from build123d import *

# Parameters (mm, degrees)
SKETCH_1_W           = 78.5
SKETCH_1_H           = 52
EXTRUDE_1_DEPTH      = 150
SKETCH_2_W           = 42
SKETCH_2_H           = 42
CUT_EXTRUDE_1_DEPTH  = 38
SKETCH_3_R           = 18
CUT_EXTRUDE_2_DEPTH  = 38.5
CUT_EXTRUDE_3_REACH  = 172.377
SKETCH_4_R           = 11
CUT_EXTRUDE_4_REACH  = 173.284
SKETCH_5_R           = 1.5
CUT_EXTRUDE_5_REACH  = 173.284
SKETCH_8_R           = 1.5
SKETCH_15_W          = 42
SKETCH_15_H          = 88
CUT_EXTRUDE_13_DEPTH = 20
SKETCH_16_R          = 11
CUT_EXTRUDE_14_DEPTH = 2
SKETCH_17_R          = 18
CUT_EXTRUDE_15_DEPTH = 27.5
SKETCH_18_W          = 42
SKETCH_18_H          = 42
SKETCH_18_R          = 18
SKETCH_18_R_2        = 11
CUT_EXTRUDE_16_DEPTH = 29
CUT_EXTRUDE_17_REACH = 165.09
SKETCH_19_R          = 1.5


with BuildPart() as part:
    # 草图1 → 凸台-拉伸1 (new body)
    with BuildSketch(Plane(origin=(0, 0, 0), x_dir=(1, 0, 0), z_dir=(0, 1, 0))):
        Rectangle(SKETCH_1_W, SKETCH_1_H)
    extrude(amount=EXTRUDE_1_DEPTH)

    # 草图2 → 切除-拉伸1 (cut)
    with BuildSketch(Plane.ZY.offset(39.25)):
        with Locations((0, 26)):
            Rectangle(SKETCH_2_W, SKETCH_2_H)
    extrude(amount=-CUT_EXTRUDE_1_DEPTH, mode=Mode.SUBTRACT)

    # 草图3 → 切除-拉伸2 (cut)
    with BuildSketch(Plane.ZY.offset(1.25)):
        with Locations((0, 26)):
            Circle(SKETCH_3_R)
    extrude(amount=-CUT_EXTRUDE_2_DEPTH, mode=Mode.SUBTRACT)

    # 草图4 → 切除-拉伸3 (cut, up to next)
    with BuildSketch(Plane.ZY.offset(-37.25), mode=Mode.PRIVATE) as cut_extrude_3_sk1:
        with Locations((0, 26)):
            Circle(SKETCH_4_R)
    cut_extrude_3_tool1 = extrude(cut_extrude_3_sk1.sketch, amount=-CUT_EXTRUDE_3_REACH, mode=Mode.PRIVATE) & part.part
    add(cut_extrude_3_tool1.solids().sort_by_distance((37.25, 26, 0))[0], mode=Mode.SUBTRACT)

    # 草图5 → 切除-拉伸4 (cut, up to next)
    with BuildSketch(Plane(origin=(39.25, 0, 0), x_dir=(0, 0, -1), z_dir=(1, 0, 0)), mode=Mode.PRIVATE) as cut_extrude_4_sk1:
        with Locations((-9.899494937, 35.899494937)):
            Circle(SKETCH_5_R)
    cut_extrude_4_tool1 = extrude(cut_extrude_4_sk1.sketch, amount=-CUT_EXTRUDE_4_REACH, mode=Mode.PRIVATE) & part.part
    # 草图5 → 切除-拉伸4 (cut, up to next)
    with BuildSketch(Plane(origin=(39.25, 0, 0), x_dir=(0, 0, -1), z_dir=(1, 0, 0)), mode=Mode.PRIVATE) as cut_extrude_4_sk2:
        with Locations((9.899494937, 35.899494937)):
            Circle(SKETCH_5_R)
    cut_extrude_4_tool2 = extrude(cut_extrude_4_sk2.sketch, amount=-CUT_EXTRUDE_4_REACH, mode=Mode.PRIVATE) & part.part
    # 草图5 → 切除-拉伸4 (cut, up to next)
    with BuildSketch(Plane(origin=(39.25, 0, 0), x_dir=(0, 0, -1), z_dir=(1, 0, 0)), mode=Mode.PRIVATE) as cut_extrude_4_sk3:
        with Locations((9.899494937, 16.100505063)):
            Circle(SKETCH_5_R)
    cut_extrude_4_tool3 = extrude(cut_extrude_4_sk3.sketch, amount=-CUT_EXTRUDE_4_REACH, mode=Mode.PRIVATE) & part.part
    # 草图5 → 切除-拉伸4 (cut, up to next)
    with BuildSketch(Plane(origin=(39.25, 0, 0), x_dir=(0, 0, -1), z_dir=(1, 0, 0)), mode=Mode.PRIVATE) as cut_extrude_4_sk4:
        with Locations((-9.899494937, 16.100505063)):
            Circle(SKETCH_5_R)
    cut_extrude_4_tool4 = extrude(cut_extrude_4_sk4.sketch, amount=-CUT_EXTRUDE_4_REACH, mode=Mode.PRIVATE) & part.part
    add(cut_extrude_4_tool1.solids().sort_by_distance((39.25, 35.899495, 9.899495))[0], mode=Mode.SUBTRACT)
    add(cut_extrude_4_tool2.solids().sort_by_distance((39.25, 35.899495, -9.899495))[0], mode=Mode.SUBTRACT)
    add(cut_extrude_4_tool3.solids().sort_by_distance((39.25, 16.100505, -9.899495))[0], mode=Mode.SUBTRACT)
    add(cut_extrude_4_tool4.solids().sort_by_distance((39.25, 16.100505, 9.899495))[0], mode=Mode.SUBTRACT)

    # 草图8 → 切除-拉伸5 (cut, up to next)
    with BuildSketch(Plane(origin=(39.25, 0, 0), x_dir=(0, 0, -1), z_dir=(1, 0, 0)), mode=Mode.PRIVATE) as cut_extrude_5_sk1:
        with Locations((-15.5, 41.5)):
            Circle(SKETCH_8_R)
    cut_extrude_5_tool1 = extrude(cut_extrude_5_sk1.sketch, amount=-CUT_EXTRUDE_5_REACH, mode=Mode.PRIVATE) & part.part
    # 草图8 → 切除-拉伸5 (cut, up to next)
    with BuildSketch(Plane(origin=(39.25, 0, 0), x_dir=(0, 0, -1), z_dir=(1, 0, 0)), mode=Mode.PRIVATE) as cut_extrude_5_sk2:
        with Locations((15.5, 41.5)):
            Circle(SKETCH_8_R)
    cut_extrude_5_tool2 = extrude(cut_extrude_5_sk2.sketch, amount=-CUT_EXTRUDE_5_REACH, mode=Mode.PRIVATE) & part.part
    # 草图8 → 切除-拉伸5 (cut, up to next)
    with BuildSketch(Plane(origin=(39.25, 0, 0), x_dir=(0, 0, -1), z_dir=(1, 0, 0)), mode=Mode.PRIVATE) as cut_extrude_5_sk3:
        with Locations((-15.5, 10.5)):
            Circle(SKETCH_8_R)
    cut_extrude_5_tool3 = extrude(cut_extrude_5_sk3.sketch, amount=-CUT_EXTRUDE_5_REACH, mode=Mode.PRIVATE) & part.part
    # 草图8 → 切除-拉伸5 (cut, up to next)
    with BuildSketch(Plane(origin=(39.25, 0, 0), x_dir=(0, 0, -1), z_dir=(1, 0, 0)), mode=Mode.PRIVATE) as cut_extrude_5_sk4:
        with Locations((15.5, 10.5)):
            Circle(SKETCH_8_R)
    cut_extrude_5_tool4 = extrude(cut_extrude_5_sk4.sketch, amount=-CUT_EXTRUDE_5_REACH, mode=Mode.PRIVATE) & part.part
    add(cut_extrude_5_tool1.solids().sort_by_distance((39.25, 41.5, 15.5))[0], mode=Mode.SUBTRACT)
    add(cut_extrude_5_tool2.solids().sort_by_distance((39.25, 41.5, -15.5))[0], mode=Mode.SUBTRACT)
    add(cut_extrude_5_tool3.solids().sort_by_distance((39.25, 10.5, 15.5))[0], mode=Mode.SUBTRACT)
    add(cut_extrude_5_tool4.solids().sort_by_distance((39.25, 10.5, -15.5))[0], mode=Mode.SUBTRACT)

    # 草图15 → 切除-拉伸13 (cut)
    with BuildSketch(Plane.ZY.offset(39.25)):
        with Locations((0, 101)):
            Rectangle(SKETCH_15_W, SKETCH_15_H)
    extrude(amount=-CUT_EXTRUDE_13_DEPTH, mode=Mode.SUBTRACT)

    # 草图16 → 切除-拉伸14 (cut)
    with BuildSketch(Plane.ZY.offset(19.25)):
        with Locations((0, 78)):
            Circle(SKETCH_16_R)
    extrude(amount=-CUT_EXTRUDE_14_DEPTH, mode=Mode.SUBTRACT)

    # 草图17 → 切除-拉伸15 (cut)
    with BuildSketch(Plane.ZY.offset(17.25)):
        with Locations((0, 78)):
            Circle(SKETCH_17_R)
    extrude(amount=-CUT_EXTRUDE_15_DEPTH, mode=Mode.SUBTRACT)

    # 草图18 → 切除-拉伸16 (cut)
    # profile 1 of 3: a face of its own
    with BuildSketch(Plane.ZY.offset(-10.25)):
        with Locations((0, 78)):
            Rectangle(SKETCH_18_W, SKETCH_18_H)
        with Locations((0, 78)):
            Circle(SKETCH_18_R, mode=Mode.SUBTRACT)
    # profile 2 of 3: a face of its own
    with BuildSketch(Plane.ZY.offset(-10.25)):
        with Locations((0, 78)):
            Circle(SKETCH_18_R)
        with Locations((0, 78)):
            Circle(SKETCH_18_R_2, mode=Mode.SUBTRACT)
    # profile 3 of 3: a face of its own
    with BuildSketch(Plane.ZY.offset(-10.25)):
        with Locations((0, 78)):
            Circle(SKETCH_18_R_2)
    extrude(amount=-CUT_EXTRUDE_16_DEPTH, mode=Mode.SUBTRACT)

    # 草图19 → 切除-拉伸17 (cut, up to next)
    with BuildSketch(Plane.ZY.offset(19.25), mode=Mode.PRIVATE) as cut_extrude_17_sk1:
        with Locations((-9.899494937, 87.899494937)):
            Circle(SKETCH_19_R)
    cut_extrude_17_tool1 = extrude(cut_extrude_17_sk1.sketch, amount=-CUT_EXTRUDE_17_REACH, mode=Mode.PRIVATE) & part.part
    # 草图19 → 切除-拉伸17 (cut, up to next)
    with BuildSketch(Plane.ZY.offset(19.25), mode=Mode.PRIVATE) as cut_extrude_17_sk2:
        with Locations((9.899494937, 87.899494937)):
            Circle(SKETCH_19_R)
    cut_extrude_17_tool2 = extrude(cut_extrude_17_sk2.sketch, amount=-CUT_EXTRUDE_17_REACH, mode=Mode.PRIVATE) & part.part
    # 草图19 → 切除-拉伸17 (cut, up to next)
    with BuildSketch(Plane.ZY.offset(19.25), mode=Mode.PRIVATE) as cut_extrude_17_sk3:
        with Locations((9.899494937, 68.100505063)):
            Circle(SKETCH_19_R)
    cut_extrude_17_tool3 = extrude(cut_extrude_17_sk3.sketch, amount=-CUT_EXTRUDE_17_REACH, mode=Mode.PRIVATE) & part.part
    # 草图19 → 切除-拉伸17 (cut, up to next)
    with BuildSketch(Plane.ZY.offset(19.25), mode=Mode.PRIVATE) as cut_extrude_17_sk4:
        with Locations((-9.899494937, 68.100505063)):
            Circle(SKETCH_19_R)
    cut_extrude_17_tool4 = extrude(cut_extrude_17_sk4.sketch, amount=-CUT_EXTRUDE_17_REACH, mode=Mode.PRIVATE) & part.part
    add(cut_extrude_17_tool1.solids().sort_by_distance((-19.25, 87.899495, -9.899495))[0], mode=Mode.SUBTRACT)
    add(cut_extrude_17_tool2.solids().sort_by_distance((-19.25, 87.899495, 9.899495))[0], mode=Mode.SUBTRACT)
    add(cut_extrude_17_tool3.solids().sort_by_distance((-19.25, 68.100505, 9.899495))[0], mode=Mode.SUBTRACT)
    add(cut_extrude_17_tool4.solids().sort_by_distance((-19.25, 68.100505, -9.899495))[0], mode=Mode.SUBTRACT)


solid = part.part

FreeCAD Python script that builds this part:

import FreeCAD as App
import Part
import Sketcher

V = App.Vector
Q = App.Units.Quantity

doc = App.newDocument("Part")
body = doc.addObject("PartDesign::Body", "Body")

sketch1 = body.newObject("Sketcher::SketchObject", "Sketch")
sketch1.AttachmentSupport = (doc.getObject("XZ_Plane"), [""])
sketch1.MapMode = "FlatFace"
sketch1.addGeometry(Part.LineSegment(V(-39, -26, 0), V(-39, 26, 0)), False)
sketch1.addGeometry(Part.LineSegment(V(-39, 26, 0), V(39, 26, 0)), False)
sketch1.addGeometry(Part.LineSegment(V(39, 26, 0), V(39, -26, 0)), False)
sketch1.addGeometry(Part.LineSegment(V(39, -26, 0), V(-39, -26, 0)), False)
sketch1.addConstraint(Sketcher.Constraint("Coincident", 0, 2, 1, 1))
sketch1.addConstraint(Sketcher.Constraint("Coincident", 1, 2, 2, 1))
sketch1.addConstraint(Sketcher.Constraint("Coincident", 2, 2, 3, 1))
sketch1.addConstraint(Sketcher.Constraint("Coincident", 3, 2, 0, 1))
sketch1.addConstraint(Sketcher.Constraint("Vertical", 0))
sketch1.addConstraint(Sketcher.Constraint("Horizontal", 1))
sketch1.addConstraint(Sketcher.Constraint("Vertical", 2))
sketch1.addConstraint(Sketcher.Constraint("Horizontal", 3))
sketch1.addConstraint(Sketcher.Constraint("Symmetric", 0, 2, 2, 2, -1, 1))
sketch1.addConstraint(Sketcher.Constraint("DistanceY", 0, 1, 0, 2, Q("52 mm")))
sketch1.addConstraint(Sketcher.Constraint("DistanceX", 1, 1, 1, 2, Q("78.5 mm")))
pad1 = body.newObject("PartDesign::Pad", "Pad")
pad1.Profile = sketch1
pad1.Length = 150
pad1.Reversed = True

sketch2 = body.newObject("Sketcher::SketchObject", "Sketch001")
sketch2.AttachmentSupport = (doc.getObject("YZ_Plane"), [""])
sketch2.MapMode = "FlatFace"
sketch2.AttachmentOffset = App.Placement(V(0, 0, -39.25), App.Rotation())
sketch2.addGeometry(Part.LineSegment(V(47, -21, 0), V(5, -21, 0)), False)
sketch2.addGeometry(Part.LineSegment(V(5, -21, 0), V(5, 21, 0)), False)
sketch2.addGeometry(Part.LineSegment(V(5, 21, 0), V(47, 21, 0)), False)
sketch2.addGeometry(Part.LineSegment(V(47, 21, 0), V(47, -21, 0)), False)
sketch2.addConstraint(Sketcher.Constraint("Coincident", 0, 2, 1, 1))
sketch2.addConstraint(Sketcher.Constraint("Coincident", 1, 2, 2, 1))
sketch2.addConstraint(Sketcher.Constraint("Coincident", 2, 2, 3, 1))
sketch2.addConstraint(Sketcher.Constraint("Coincident", 3, 2, 0, 1))
sketch2.addConstraint(Sketcher.Constraint("Horizontal", 0))
sketch2.addConstraint(Sketcher.Constraint("Vertical", 1))
sketch2.addConstraint(Sketcher.Constraint("Horizontal", 2))
sketch2.addConstraint(Sketcher.Constraint("Vertical", 3))
sketch2.addConstraint(Sketcher.Constraint("Equal", 2, 1))
sketch2.addConstraint(Sketcher.Constraint("DistanceX", 0, 2, 0, 1, Q("42 mm")))
sketch2.addConstraint(Sketcher.Constraint("DistanceX", -1, 1, 0, 2, Q("5 mm")))
sketch2.addConstraint(Sketcher.Constraint("DistanceY", 0, 2, -1, 1, Q("21 mm")))
pocket1 = body.newObject("PartDesign::Pocket", "Pocket")
pocket1.Profile = sketch2
pocket1.Length = 38
pocket1.Reversed = True

sketch3 = body.newObject("Sketcher::SketchObject", "Sketch002")
sketch3.AttachmentSupport = (doc.getObject("YZ_Plane"), [""])
sketch3.MapMode = "FlatFace"
sketch3.AttachmentOffset = App.Placement(V(0, 0, -1.25), App.Rotation())
sketch3.addGeometry(Part.Circle(V(26, 0, 0), V(0, 0, 1), 18), False)
sketch3.addConstraint(Sketcher.Constraint("PointOnObject", 0, 3, -1))
sketch3.addConstraint(Sketcher.Constraint("Diameter", 0, Q("36 mm")))
sketch3.addConstraint(Sketcher.Constraint("DistanceX", -1, 1, 0, 3, Q("26 mm")))
pocket2 = body.newObject("PartDesign::Pocket", "Pocket001")
pocket2.Profile = sketch3
pocket2.Length = 38.5
pocket2.Reversed = True

sketch4 = body.newObject("Sketcher::SketchObject", "Sketch003")
sketch4.AttachmentSupport = (doc.getObject("YZ_Plane"), [""])
sketch4.MapMode = "FlatFace"
sketch4.AttachmentOffset = App.Placement(V(0, 0, 37.25), App.Rotation())
sketch4.addGeometry(Part.Circle(V(26, 0, 0), V(0, 0, 1), 11), False)
sketch4.addConstraint(Sketcher.Constraint("PointOnObject", 0, 3, -1))
sketch4.addConstraint(Sketcher.Constraint("Diameter", 0, Q("22 mm")))
sketch4.addConstraint(Sketcher.Constraint("DistanceX", -1, 1, 0, 3, Q("26 mm")))
pocket3 = body.newObject("PartDesign::Pocket", "Pocket002")
pocket3.Profile = sketch4
pocket3.Type = "UpToFirst"
pocket3.Reversed = True

sketch5 = body.newObject("Sketcher::SketchObject", "Sketch004")
sketch5.AttachmentSupport = (doc.getObject("YZ_Plane"), [""])
sketch5.MapMode = "FlatFace"
sketch5.AttachmentOffset = App.Placement(V(0, 0, 39.25), App.Rotation())
sketch5.addGeometry(Part.Circle(V(35.9, 9.9, 0), V(0, 0, 1), 1.5), False)
sketch5.addConstraint(Sketcher.Constraint("Diameter", 0, Q("3 mm")))
sketch5.addConstraint(Sketcher.Constraint("DistanceX", -1, 1, 0, 3, Q("35.899495 mm")))
sketch5.addConstraint(Sketcher.Constraint("DistanceY", -1, 1, 0, 3, Q("9.899495 mm")))
pocket4 = body.newObject("PartDesign::Pocket", "Pocket003")
pocket4.Profile = sketch5
pocket4.Type = "UpToFirst"

sketch6 = body.newObject("Sketcher::SketchObject", "Sketch005")
sketch6.AttachmentSupport = (doc.getObject("YZ_Plane"), [""])
sketch6.MapMode = "FlatFace"
sketch6.AttachmentOffset = App.Placement(V(0, 0, 39.25), App.Rotation())
sketch6.addGeometry(Part.Circle(V(35.9, -9.9, 0), V(0, 0, 1), 1.5), False)
sketch6.addConstraint(Sketcher.Constraint("Diameter", 0, Q("3 mm")))
sketch6.addConstraint(Sketcher.Constraint("DistanceX", -1, 1, 0, 3, Q("35.899495 mm")))
sketch6.addConstraint(Sketcher.Constraint("DistanceY", 0, 3, -1, 1, Q("9.899495 mm")))
pocket5 = body.newObject("PartDesign::Pocket", "Pocket004")
pocket5.Profile = sketch6
pocket5.Type = "UpToFirst"

sketch7 = body.newObject("Sketcher::SketchObject", "Sketch006")
sketch7.AttachmentSupport = (doc.getObject("YZ_Plane"), [""])
sketch7.MapMode = "FlatFace"
sketch7.AttachmentOffset = App.Placement(V(0, 0, 39.25), App.Rotation())
sketch7.addGeometry(Part.Circle(V(16.1, -9.9, 0), V(0, 0, 1), 1.5), False)
sketch7.addConstraint(Sketcher.Constraint("Diameter", 0, Q("3 mm")))
sketch7.addConstraint(Sketcher.Constraint("DistanceX", -1, 1, 0, 3, Q("16.100505 mm")))
sketch7.addConstraint(Sketcher.Constraint("DistanceY", 0, 3, -1, 1, Q("9.899495 mm")))
pocket6 = body.newObject("PartDesign::Pocket", "Pocket005")
pocket6.Profile = sketch7
pocket6.Type = "UpToFirst"

sketch8 = body.newObject("Sketcher::SketchObject", "Sketch007")
sketch8.AttachmentSupport = (doc.getObject("YZ_Plane"), [""])
sketch8.MapMode = "FlatFace"
sketch8.AttachmentOffset = App.Placement(V(0, 0, 39.25), App.Rotation())
sketch8.addGeometry(Part.Circle(V(16.1, 9.9, 0), V(0, 0, 1), 1.5), False)
sketch8.addConstraint(Sketcher.Constraint("Diameter", 0, Q("3 mm")))
sketch8.addConstraint(Sketcher.Constraint("DistanceX", -1, 1, 0, 3, Q("16.100505 mm")))
sketch8.addConstraint(Sketcher.Constraint("DistanceY", -1, 1, 0, 3, Q("9.899495 mm")))
pocket7 = body.newObject("PartDesign::Pocket", "Pocket006")
pocket7.Profile = sketch8
pocket7.Type = "UpToFirst"

sketch9 = body.newObject("Sketcher::SketchObject", "Sketch008")
sketch9.AttachmentSupport = (doc.getObject("YZ_Plane"), [""])
sketch9.MapMode = "FlatFace"
sketch9.AttachmentOffset = App.Placement(V(0, 0, 39.25), App.Rotation())
sketch9.addGeometry(Part.Circle(V(41.5, 15.5, 0), V(0, 0, 1), 1.5), False)
sketch9.addConstraint(Sketcher.Constraint("Diameter", 0, Q("3 mm")))
sketch9.addConstraint(Sketcher.Constraint("DistanceX", -1, 1, 0, 3, Q("41.5 mm")))
sketch9.addConstraint(Sketcher.Constraint("DistanceY", -1, 1, 0, 3, Q("15.5 mm")))
pocket8 = body.newObject("PartDesign::Pocket", "Pocket007")
pocket8.Profile = sketch9
pocket8.Type = "UpToFirst"

sketch10 = body.newObject("Sketcher::SketchObject", "Sketch009")
sketch10.AttachmentSupport = (doc.getObject("YZ_Plane"), [""])
sketch10.MapMode = "FlatFace"
sketch10.AttachmentOffset = App.Placement(V(0, 0, 39.25), App.Rotation())
sketch10.addGeometry(Part.Circle(V(41.5, -15.5, 0), V(0, 0, 1), 1.5), False)
sketch10.addConstraint(Sketcher.Constraint("Diameter", 0, Q("3 mm")))
sketch10.addConstraint(Sketcher.Constraint("DistanceX", -1, 1, 0, 3, Q("41.5 mm")))
sketch10.addConstraint(Sketcher.Constraint("DistanceY", 0, 3, -1, 1, Q("15.5 mm")))
pocket9 = body.newObject("PartDesign::Pocket", "Pocket008")
pocket9.Profile = sketch10
pocket9.Type = "UpToFirst"

sketch11 = body.newObject("Sketcher::SketchObject", "Sketch010")
sketch11.AttachmentSupport = (doc.getObject("YZ_Plane"), [""])
sketch11.MapMode = "FlatFace"
sketch11.AttachmentOffset = App.Placement(V(0, 0, 39.25), App.Rotation())
sketch11.addGeometry(Part.Circle(V(10.5, 15.5, 0), V(0, 0, 1), 1.5), False)
sketch11.addConstraint(Sketcher.Constraint("Diameter", 0, Q("3 mm")))
sketch11.addConstraint(Sketcher.Constraint("DistanceX", -1, 1, 0, 3, Q("10.5 mm")))
sketch11.addConstraint(Sketcher.Constraint("DistanceY", -1, 1, 0, 3, Q("15.5 mm")))
pocket10 = body.newObject("PartDesign::Pocket", "Pocket009")
pocket10.Profile = sketch11
pocket10.Type = "UpToFirst"

sketch12 = body.newObject("Sketcher::SketchObject", "Sketch011")
sketch12.AttachmentSupport = (doc.getObject("YZ_Plane"), [""])
sketch12.MapMode = "FlatFace"
sketch12.AttachmentOffset = App.Placement(V(0, 0, 39.25), App.Rotation())
sketch12.addGeometry(Part.Circle(V(10.5, -15.5, 0), V(0, 0, 1), 1.5), False)
sketch12.addConstraint(Sketcher.Constraint("Diameter", 0, Q("3 mm")))
sketch12.addConstraint(Sketcher.Constraint("DistanceX", -1, 1, 0, 3, Q("10.5 mm")))
sketch12.addConstraint(Sketcher.Constraint("DistanceY", 0, 3, -1, 1, Q("15.5 mm")))
pocket11 = body.newObject("PartDesign::Pocket", "Pocket010")
pocket11.Profile = sketch12
pocket11.Type = "UpToFirst"

sketch13 = body.newObject("Sketcher::SketchObject", "Sketch012")
sketch13.AttachmentSupport = (doc.getObject("YZ_Plane"), [""])
sketch13.MapMode = "FlatFace"
sketch13.AttachmentOffset = App.Placement(V(0, 0, -39.25), App.Rotation())
sketch13.addGeometry(Part.LineSegment(V(145, -21, 0), V(57, -21, 0)), False)
sketch13.addGeometry(Part.LineSegment(V(57, -21, 0), V(57, 21, 0)), False)
sketch13.addGeometry(Part.LineSegment(V(57, 21, 0), V(145, 21, 0)), False)
sketch13.addGeometry(Part.LineSegment(V(145, 21, 0), V(145, -21, 0)), False)
sketch13.addConstraint(Sketcher.Constraint("Coincident", 0, 2, 1, 1))
sketch13.addConstraint(Sketcher.Constraint("Coincident", 1, 2, 2, 1))
sketch13.addConstraint(Sketcher.Constraint("Coincident", 2, 2, 3, 1))
sketch13.addConstraint(Sketcher.Constraint("Coincident", 3, 2, 0, 1))
sketch13.addConstraint(Sketcher.Constraint("Horizontal", 0))
sketch13.addConstraint(Sketcher.Constraint("Vertical", 1))
sketch13.addConstraint(Sketcher.Constraint("Horizontal", 2))
sketch13.addConstraint(Sketcher.Constraint("Vertical", 3))
sketch13.addConstraint(Sketcher.Constraint("DistanceX", 0, 2, 0, 1, Q("88 mm")))
sketch13.addConstraint(Sketcher.Constraint("DistanceY", 1, 1, 1, 2, Q("42 mm")))
sketch13.addConstraint(Sketcher.Constraint("DistanceX", -1, 1, 0, 2, Q("57 mm")))
sketch13.addConstraint(Sketcher.Constraint("DistanceY", 0, 2, -1, 1, Q("21 mm")))
pocket12 = body.newObject("PartDesign::Pocket", "Pocket011")
pocket12.Profile = sketch13
pocket12.Length = 20
pocket12.Reversed = True

sketch14 = body.newObject("Sketcher::SketchObject", "Sketch013")
sketch14.AttachmentSupport = (doc.getObject("YZ_Plane"), [""])
sketch14.MapMode = "FlatFace"
sketch14.AttachmentOffset = App.Placement(V(0, 0, -19.25), App.Rotation())
sketch14.addGeometry(Part.Circle(V(78, 0, 0), V(0, 0, 1), 11), False)
sketch14.addConstraint(Sketcher.Constraint("PointOnObject", 0, 3, -1))
sketch14.addConstraint(Sketcher.Constraint("Diameter", 0, Q("22 mm")))
sketch14.addConstraint(Sketcher.Constraint("DistanceX", -1, 1, 0, 3, Q("78 mm")))
pocket13 = body.newObject("PartDesign::Pocket", "Pocket012")
pocket13.Profile = sketch14
pocket13.Length = 2
pocket13.Reversed = True

sketch15 = body.newObject("Sketcher::SketchObject", "Sketch014")
sketch15.AttachmentSupport = (doc.getObject("YZ_Plane"), [""])
sketch15.MapMode = "FlatFace"
sketch15.AttachmentOffset = App.Placement(V(0, 0, -17.25), App.Rotation())
sketch15.addGeometry(Part.Circle(V(78, 0, 0), V(0, 0, 1), 18), False)
sketch15.addConstraint(Sketcher.Constraint("PointOnObject", 0, 3, -1))
sketch15.addConstraint(Sketcher.Constraint("Diameter", 0, Q("36 mm")))
sketch15.addConstraint(Sketcher.Constraint("DistanceX", -1, 1, 0, 3, Q("78 mm")))
pocket14 = body.newObject("PartDesign::Pocket", "Pocket013")
pocket14.Profile = sketch15
pocket14.Length = 27.5
pocket14.Reversed = True

sketch16 = body.newObject("Sketcher::SketchObject", "Sketch015")
sketch16.AttachmentSupport = (doc.getObject("YZ_Plane"), [""])
sketch16.MapMode = "FlatFace"
sketch16.AttachmentOffset = App.Placement(V(0, 0, 10.25), App.Rotation())
sketch16.addGeometry(Part.LineSegment(V(99, -21, 0), V(57, -21, 0)), False)
sketch16.addGeometry(Part.LineSegment(V(57, -21, 0), V(57, 21, 0)), False)
sketch16.addGeometry(Part.LineSegment(V(57, 21, 0), V(99, 21, 0)), False)
sketch16.addGeometry(Part.LineSegment(V(99, 21, 0), V(99, -21, 0)), False)
sketch16.addConstraint(Sketcher.Constraint("Coincident", 0, 2, 1, 1))
sketch16.addConstraint(Sketcher.Constraint("Coincident", 1, 2, 2, 1))
sketch16.addConstraint(Sketcher.Constraint("Coincident", 2, 2, 3, 1))
sketch16.addConstraint(Sketcher.Constraint("Coincident", 3, 2, 0, 1))
sketch16.addConstraint(Sketcher.Constraint("Horizontal", 0))
sketch16.addConstraint(Sketcher.Constraint("Vertical", 1))
sketch16.addConstraint(Sketcher.Constraint("Horizontal", 2))
sketch16.addConstraint(Sketcher.Constraint("Vertical", 3))
sketch16.addConstraint(Sketcher.Constraint("Equal", 2, 1))
sketch16.addConstraint(Sketcher.Constraint("DistanceX", 0, 2, 0, 1, Q("42 mm")))
sketch16.addConstraint(Sketcher.Constraint("DistanceX", -1, 1, 0, 2, Q("57 mm")))
sketch16.addConstraint(Sketcher.Constraint("DistanceY", 0, 2, -1, 1, Q("21 mm")))
pocket15 = body.newObject("PartDesign::Pocket", "Pocket014")
pocket15.Profile = sketch16
pocket15.Length = 29
pocket15.Reversed = True

sketch17 = body.newObject("Sketcher::SketchObject", "Sketch016")
sketch17.AttachmentSupport = (doc.getObject("YZ_Plane"), [""])
sketch17.MapMode = "FlatFace"
sketch17.AttachmentOffset = App.Placement(V(0, 0, -19.25), App.Rotation())
sketch17.addGeometry(Part.Circle(V(87.9, -9.9, 0), V(0, 0, 1), 1.5), False)
sketch17.addConstraint(Sketcher.Constraint("Diameter", 0, Q("3 mm")))
sketch17.addConstraint(Sketcher.Constraint("DistanceX", -1, 1, 0, 3, Q("87.899495 mm")))
sketch17.addConstraint(Sketcher.Constraint("DistanceY", 0, 3, -1, 1, Q("9.899495 mm")))
pocket16 = body.newObject("PartDesign::Pocket", "Pocket015")
pocket16.Profile = sketch17
pocket16.Type = "UpToFirst"
pocket16.Reversed = True

sketch18 = body.newObject("Sketcher::SketchObject", "Sketch017")
sketch18.AttachmentSupport = (doc.getObject("YZ_Plane"), [""])
sketch18.MapMode = "FlatFace"
sketch18.AttachmentOffset = App.Placement(V(0, 0, -19.25), App.Rotation())
sketch18.addGeometry(Part.Circle(V(87.9, 9.9, 0), V(0, 0, 1), 1.5), False)
sketch18.addConstraint(Sketcher.Constraint("Diameter", 0, Q("3 mm")))
sketch18.addConstraint(Sketcher.Constraint("DistanceX", -1, 1, 0, 3, Q("87.899495 mm")))
sketch18.addConstraint(Sketcher.Constraint("DistanceY", -1, 1, 0, 3, Q("9.899495 mm")))
pocket17 = body.newObject("PartDesign::Pocket", "Pocket016")
pocket17.Profile = sketch18
pocket17.Type = "UpToFirst"
pocket17.Reversed = True

sketch19 = body.newObject("Sketcher::SketchObject", "Sketch018")
sketch19.AttachmentSupport = (doc.getObject("YZ_Plane"), [""])
sketch19.MapMode = "FlatFace"
sketch19.AttachmentOffset = App.Placement(V(0, 0, -19.25), App.Rotation())
sketch19.addGeometry(Part.Circle(V(68.1, 9.9, 0), V(0, 0, 1), 1.5), False)
sketch19.addConstraint(Sketcher.Constraint("Diameter", 0, Q("3 mm")))
sketch19.addConstraint(Sketcher.Constraint("DistanceX", -1, 1, 0, 3, Q("68.100505 mm")))
sketch19.addConstraint(Sketcher.Constraint("DistanceY", -1, 1, 0, 3, Q("9.899495 mm")))
pocket18 = body.newObject("PartDesign::Pocket", "Pocket017")
pocket18.Profile = sketch19
pocket18.Type = "UpToFirst"
pocket18.Reversed = True

sketch20 = body.newObject("Sketcher::SketchObject", "Sketch019")
sketch20.AttachmentSupport = (doc.getObject("YZ_Plane"), [""])
sketch20.MapMode = "FlatFace"
sketch20.AttachmentOffset = App.Placement(V(0, 0, -19.25), App.Rotation())
sketch20.addGeometry(Part.Circle(V(68.1, -9.9, 0), V(0, 0, 1), 1.5), False)
sketch20.addConstraint(Sketcher.Constraint("Diameter", 0, Q("3 mm")))
sketch20.addConstraint(Sketcher.Constraint("DistanceX", -1, 1, 0, 3, Q("68.100505 mm")))
sketch20.addConstraint(Sketcher.Constraint("DistanceY", 0, 3, -1, 1, Q("9.899495 mm")))
pocket19 = body.newObject("PartDesign::Pocket", "Pocket018")
pocket19.Profile = sketch20
pocket19.Type = "UpToFirst"
pocket19.Reversed = True

doc.recompute()
